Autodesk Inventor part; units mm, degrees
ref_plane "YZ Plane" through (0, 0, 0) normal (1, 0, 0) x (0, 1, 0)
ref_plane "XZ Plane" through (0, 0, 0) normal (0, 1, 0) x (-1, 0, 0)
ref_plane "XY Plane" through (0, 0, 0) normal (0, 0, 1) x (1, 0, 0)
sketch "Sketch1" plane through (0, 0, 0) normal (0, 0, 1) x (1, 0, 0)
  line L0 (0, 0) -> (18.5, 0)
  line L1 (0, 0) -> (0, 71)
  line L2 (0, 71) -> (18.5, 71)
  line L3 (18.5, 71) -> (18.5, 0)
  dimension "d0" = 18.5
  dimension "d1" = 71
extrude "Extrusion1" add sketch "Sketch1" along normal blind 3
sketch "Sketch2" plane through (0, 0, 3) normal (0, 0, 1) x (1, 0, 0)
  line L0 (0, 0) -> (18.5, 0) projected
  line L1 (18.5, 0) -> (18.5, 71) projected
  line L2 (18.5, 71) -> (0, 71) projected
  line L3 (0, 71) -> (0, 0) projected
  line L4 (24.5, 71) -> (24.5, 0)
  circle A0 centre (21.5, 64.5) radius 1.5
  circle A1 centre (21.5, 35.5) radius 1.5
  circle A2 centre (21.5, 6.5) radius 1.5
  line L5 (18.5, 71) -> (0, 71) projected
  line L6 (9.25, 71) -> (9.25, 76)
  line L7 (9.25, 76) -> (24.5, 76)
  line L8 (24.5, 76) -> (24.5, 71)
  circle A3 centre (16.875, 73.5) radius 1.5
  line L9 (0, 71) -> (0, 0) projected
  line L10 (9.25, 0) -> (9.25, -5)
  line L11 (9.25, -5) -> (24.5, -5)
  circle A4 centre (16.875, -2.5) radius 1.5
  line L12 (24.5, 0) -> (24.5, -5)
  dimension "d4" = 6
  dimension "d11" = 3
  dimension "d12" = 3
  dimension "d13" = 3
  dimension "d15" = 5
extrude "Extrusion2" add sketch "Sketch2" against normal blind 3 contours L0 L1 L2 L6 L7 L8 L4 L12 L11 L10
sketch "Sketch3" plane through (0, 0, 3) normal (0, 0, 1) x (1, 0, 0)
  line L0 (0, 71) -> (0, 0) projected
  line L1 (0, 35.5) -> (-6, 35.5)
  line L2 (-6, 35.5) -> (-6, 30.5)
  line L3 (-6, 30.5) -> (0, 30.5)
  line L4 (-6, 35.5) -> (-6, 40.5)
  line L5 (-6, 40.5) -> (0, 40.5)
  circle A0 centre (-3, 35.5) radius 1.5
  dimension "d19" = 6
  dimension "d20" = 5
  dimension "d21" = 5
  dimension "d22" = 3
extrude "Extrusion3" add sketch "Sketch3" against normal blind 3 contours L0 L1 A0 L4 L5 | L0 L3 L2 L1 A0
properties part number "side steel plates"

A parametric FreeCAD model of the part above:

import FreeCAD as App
import Part
import Sketcher

V = App.Vector


def add_polygon(sketch, points):
    """Adds a closed chain of lines whose ends are joined by coincident constraints."""
    first, n = sketch.GeometryCount, len(points)
    for a, b in zip(points, points[1:] + points[:1]):
        sketch.addGeometry(Part.LineSegment(App.Vector(*a, 0), App.Vector(*b, 0)), False)
    for i in range(n):
        sketch.addConstraint(Sketcher.Constraint("Coincident", first + i, 2, first + (i + 1) % n, 1))

doc = App.newDocument("Part")
params = doc.addObject("Spreadsheet::Sheet", "Params")
for row, (alias, value) in enumerate([
    ("sketch1_height", "71 mm"),
    ("sketch1_width", "18.5 mm"),
    ("pad1_length", "3 mm"),
    ("sketch2_diameter", "3 mm"),
    ("sketch2_height", "5 mm"),
    ("sketch2_height2", "81 mm"),
    ("sketch2_width", "9.25 mm"),
    ("pad2_length", "3 mm"),
    ("sketch3_diameter", "3 mm"),
    ("sketch3_width", "6 mm"),
    ("pad3_length", "3 mm"),
], start=1):
    params.set(f"A{row}", alias)
    params.set(f"B{row}", "=" + value)
    params.setAlias(f"B{row}", alias)

body = doc.addObject("PartDesign::Body", "Body")

# Sketch on XY plane
sketch1 = body.newObject("Sketcher::SketchObject", "Sketch")
sketch1.AttachmentSupport = (doc.getObject("XY_Plane"), [""])
sketch1.MapMode = "FlatFace"
add_polygon(sketch1, [(0, 71), (0, 0), (18.5, 0), (18.5, 71)])  # lines 0-3
sketch1.addConstraint(Sketcher.Constraint("Vertical", 0))
sketch1.addConstraint(Sketcher.Constraint("Horizontal", 1))
sketch1.addConstraint(Sketcher.Constraint("Vertical", 2))
sketch1.addConstraint(Sketcher.Constraint("Horizontal", 3))
sketch1.addConstraint(Sketcher.Constraint("Coincident", 0, 2, -1, 1))
sketch1.addConstraint(Sketcher.Constraint("DistanceY", 0, 2, 0, 1, 71.0))
sketch1.addConstraint(Sketcher.Constraint("DistanceX", 1, 1, 1, 2, 18.5))
sketch1.setExpression("Constraints[9]", "Params.sketch1_height")
sketch1.setExpression("Constraints[10]", "Params.sketch1_width")
pad1 = body.newObject("PartDesign::Pad", "Pad")
pad1.Profile = sketch1
pad1.setExpression("Length", "Params.pad1_length")

# Sketch on XY plane
sketch2 = body.newObject("Sketcher::SketchObject", "Sketch001")
sketch2.AttachmentSupport = (doc.getObject("XY_Plane"), [""])
sketch2.MapMode = "FlatFace"
sketch2.AttachmentOffset = App.Placement(V(0, 0, 3), App.Rotation())
add_polygon(sketch2, [(18.5, 0), (9.25, 0), (9.25, -5), (24.5, -5), (24.5, 76), (9.25, 76), (9.25, 71), (18.5, 71)])  # lines 0-7
sketch2.addGeometry(Part.Circle(V(16.875, -2.5, 0), V(0, 0, 1), 1.5), False)  # 8
sketch2.addGeometry(Part.Circle(V(21.5, 6.5, 0), V(0, 0, 1), 1.5), False)  # 9
sketch2.addGeometry(Part.Circle(V(21.5, 35.5, 0), V(0, 0, 1), 1.5), False)  # 10
sketch2.addGeometry(Part.Circle(V(16.875, 73.5, 0), V(0, 0, 1), 1.5), False)  # 11
sketch2.addGeometry(Part.Circle(V(21.5, 64.5, 0), V(0, 0, 1), 1.5), False)  # 12
sketch2.addConstraint(Sketcher.Constraint("Horizontal", 0))
sketch2.addConstraint(Sketcher.Constraint("Vertical", 1))
sketch2.addConstraint(Sketcher.Constraint("Horizontal", 2))
sketch2.addConstraint(Sketcher.Constraint("Vertical", 3))
sketch2.addConstraint(Sketcher.Constraint("Horizontal", 4))
sketch2.addConstraint(Sketcher.Constraint("Vertical", 5))
sketch2.addConstraint(Sketcher.Constraint("Horizontal", 6))
sketch2.addConstraint(Sketcher.Constraint("Vertical", 7))
sketch2.addConstraint(Sketcher.Constraint("Equal", 8, 9))
sketch2.addConstraint(Sketcher.Constraint("Equal", 9, 10))
sketch2.addConstraint(Sketcher.Constraint("Equal", 10, 11))
sketch2.addConstraint(Sketcher.Constraint("Equal", 11, 12))
sketch2.addConstraint(Sketcher.Constraint("PointOnObject", 0, 2, -1))
sketch2.addConstraint(Sketcher.Constraint("Vertical", 9, 3, 10, 3))
sketch2.addConstraint(Sketcher.Constraint("Vertical", 8, 3, 11, 3))
sketch2.addConstraint(Sketcher.Constraint("Vertical", 10, 3, 12, 3))
sketch2.addConstraint(Sketcher.Constraint("Vertical", 1, 2, 4, 2))
sketch2.addConstraint(Sketcher.Constraint("Equal", 1, 5))
sketch2.addConstraint(Sketcher.Constraint("Diameter", 8, 3.0))
sketch2.addConstraint(Sketcher.Constraint("DistanceY", 1, 2, 1, 1, 5.0))
sketch2.addConstraint(Sketcher.Constraint("DistanceX", 9, 3, 2, 2, 3.0))
sketch2.addConstraint(Sketcher.Constraint("DistanceX", 6, 2, 12, 3, 3.0))
sketch2.addConstraint(Sketcher.Constraint("DistanceY", 3, 1, 3, 2, 81.0))
sketch2.addConstraint(Sketcher.Constraint("DistanceY", 8, 3, 9, 3, 9.0))
sketch2.addConstraint(Sketcher.Constraint("DistanceY", 9, 3, 10, 3, 29.0))
sketch2.addConstraint(Sketcher.Constraint("DistanceY", 10, 3, 11, 3, 38.0))
sketch2.addConstraint(Sketcher.Constraint("DistanceY", 12, 3, 11, 3, 9.0))
sketch2.addConstraint(Sketcher.Constraint("DistanceX", 0, 2, 0, 1, 9.25))
sketch2.addConstraint(Sketcher.Constraint("DistanceY", 8, 3, -1, 1, 2.5))
sketch2.addConstraint(Sketcher.Constraint("DistanceX", -1, 1, 9, 3, 21.5))
sketch2.addConstraint(Sketcher.Constraint("DistanceX", -1, 1, 8, 3, 16.875))
sketch2.setExpression("Constraints[26]", "Params.sketch2_diameter")
sketch2.setExpression("Constraints[27]", "Params.sketch2_height")
sketch2.setExpression("Constraints[30]", "Params.sketch2_height2")
sketch2.setExpression("Constraints[35]", "Params.sketch2_width")
pad2 = body.newObject("PartDesign::Pad", "Pad001")
pad2.Profile = sketch2
pad2.setExpression("Length", "Params.pad2_length")
pad2.Reversed = True

# Sketch on XY plane
sketch3 = body.newObject("Sketcher::SketchObject", "Sketch002")
sketch3.AttachmentSupport = (doc.getObject("XY_Plane"), [""])
sketch3.MapMode = "FlatFace"
sketch3.AttachmentOffset = App.Placement(V(0, 0, 3), App.Rotation())
add_polygon(sketch3, [(0, 40.5), (-6, 40.5), (-6, 30.5), (0, 30.5)])  # lines 0-3
sketch3.addGeometry(Part.Circle(V(-3, 35.5, 0), V(0, 0, 1), 1.5), False)  # 4
sketch3.addConstraint(Sketcher.Constraint("Horizontal", 0))
sketch3.addConstraint(Sketcher.Constraint("Vertical", 1))
sketch3.addConstraint(Sketcher.Constraint("Horizontal", 2))
sketch3.addConstraint(Sketcher.Constraint("Vertical", 3))
sketch3.addConstraint(Sketcher.Constraint("PointOnObject", 2, 2, -2))
sketch3.addConstraint(Sketcher.Constraint("Diameter", 4, 3.0))
sketch3.addConstraint(Sketcher.Constraint("DistanceX", 0, 2, 0, 1, 6.0))
sketch3.addConstraint(Sketcher.Constraint("DistanceX", 4, 3, -1, 1, 3.0))
sketch3.addConstraint(Sketcher.Constraint("DistanceY", 4, 3, 0, 2, 5.0))
sketch3.addConstraint(Sketcher.Constraint("DistanceY", 1, 2, 4, 3, 5.0))
sketch3.addConstraint(Sketcher.Constraint("DistanceY", -1, 1, 4, 3, 35.5))
sketch3.setExpression("Constraints[9]", "Params.sketch3_diameter")
sketch3.setExpression("Constraints[10]", "Params.sketch3_width")
pad3 = body.newObject("PartDesign::Pad", "Pad002")
pad3.Profile = sketch3
pad3.setExpression("Length", "Params.pad3_length")
pad3.Reversed = True

doc.recompute()
